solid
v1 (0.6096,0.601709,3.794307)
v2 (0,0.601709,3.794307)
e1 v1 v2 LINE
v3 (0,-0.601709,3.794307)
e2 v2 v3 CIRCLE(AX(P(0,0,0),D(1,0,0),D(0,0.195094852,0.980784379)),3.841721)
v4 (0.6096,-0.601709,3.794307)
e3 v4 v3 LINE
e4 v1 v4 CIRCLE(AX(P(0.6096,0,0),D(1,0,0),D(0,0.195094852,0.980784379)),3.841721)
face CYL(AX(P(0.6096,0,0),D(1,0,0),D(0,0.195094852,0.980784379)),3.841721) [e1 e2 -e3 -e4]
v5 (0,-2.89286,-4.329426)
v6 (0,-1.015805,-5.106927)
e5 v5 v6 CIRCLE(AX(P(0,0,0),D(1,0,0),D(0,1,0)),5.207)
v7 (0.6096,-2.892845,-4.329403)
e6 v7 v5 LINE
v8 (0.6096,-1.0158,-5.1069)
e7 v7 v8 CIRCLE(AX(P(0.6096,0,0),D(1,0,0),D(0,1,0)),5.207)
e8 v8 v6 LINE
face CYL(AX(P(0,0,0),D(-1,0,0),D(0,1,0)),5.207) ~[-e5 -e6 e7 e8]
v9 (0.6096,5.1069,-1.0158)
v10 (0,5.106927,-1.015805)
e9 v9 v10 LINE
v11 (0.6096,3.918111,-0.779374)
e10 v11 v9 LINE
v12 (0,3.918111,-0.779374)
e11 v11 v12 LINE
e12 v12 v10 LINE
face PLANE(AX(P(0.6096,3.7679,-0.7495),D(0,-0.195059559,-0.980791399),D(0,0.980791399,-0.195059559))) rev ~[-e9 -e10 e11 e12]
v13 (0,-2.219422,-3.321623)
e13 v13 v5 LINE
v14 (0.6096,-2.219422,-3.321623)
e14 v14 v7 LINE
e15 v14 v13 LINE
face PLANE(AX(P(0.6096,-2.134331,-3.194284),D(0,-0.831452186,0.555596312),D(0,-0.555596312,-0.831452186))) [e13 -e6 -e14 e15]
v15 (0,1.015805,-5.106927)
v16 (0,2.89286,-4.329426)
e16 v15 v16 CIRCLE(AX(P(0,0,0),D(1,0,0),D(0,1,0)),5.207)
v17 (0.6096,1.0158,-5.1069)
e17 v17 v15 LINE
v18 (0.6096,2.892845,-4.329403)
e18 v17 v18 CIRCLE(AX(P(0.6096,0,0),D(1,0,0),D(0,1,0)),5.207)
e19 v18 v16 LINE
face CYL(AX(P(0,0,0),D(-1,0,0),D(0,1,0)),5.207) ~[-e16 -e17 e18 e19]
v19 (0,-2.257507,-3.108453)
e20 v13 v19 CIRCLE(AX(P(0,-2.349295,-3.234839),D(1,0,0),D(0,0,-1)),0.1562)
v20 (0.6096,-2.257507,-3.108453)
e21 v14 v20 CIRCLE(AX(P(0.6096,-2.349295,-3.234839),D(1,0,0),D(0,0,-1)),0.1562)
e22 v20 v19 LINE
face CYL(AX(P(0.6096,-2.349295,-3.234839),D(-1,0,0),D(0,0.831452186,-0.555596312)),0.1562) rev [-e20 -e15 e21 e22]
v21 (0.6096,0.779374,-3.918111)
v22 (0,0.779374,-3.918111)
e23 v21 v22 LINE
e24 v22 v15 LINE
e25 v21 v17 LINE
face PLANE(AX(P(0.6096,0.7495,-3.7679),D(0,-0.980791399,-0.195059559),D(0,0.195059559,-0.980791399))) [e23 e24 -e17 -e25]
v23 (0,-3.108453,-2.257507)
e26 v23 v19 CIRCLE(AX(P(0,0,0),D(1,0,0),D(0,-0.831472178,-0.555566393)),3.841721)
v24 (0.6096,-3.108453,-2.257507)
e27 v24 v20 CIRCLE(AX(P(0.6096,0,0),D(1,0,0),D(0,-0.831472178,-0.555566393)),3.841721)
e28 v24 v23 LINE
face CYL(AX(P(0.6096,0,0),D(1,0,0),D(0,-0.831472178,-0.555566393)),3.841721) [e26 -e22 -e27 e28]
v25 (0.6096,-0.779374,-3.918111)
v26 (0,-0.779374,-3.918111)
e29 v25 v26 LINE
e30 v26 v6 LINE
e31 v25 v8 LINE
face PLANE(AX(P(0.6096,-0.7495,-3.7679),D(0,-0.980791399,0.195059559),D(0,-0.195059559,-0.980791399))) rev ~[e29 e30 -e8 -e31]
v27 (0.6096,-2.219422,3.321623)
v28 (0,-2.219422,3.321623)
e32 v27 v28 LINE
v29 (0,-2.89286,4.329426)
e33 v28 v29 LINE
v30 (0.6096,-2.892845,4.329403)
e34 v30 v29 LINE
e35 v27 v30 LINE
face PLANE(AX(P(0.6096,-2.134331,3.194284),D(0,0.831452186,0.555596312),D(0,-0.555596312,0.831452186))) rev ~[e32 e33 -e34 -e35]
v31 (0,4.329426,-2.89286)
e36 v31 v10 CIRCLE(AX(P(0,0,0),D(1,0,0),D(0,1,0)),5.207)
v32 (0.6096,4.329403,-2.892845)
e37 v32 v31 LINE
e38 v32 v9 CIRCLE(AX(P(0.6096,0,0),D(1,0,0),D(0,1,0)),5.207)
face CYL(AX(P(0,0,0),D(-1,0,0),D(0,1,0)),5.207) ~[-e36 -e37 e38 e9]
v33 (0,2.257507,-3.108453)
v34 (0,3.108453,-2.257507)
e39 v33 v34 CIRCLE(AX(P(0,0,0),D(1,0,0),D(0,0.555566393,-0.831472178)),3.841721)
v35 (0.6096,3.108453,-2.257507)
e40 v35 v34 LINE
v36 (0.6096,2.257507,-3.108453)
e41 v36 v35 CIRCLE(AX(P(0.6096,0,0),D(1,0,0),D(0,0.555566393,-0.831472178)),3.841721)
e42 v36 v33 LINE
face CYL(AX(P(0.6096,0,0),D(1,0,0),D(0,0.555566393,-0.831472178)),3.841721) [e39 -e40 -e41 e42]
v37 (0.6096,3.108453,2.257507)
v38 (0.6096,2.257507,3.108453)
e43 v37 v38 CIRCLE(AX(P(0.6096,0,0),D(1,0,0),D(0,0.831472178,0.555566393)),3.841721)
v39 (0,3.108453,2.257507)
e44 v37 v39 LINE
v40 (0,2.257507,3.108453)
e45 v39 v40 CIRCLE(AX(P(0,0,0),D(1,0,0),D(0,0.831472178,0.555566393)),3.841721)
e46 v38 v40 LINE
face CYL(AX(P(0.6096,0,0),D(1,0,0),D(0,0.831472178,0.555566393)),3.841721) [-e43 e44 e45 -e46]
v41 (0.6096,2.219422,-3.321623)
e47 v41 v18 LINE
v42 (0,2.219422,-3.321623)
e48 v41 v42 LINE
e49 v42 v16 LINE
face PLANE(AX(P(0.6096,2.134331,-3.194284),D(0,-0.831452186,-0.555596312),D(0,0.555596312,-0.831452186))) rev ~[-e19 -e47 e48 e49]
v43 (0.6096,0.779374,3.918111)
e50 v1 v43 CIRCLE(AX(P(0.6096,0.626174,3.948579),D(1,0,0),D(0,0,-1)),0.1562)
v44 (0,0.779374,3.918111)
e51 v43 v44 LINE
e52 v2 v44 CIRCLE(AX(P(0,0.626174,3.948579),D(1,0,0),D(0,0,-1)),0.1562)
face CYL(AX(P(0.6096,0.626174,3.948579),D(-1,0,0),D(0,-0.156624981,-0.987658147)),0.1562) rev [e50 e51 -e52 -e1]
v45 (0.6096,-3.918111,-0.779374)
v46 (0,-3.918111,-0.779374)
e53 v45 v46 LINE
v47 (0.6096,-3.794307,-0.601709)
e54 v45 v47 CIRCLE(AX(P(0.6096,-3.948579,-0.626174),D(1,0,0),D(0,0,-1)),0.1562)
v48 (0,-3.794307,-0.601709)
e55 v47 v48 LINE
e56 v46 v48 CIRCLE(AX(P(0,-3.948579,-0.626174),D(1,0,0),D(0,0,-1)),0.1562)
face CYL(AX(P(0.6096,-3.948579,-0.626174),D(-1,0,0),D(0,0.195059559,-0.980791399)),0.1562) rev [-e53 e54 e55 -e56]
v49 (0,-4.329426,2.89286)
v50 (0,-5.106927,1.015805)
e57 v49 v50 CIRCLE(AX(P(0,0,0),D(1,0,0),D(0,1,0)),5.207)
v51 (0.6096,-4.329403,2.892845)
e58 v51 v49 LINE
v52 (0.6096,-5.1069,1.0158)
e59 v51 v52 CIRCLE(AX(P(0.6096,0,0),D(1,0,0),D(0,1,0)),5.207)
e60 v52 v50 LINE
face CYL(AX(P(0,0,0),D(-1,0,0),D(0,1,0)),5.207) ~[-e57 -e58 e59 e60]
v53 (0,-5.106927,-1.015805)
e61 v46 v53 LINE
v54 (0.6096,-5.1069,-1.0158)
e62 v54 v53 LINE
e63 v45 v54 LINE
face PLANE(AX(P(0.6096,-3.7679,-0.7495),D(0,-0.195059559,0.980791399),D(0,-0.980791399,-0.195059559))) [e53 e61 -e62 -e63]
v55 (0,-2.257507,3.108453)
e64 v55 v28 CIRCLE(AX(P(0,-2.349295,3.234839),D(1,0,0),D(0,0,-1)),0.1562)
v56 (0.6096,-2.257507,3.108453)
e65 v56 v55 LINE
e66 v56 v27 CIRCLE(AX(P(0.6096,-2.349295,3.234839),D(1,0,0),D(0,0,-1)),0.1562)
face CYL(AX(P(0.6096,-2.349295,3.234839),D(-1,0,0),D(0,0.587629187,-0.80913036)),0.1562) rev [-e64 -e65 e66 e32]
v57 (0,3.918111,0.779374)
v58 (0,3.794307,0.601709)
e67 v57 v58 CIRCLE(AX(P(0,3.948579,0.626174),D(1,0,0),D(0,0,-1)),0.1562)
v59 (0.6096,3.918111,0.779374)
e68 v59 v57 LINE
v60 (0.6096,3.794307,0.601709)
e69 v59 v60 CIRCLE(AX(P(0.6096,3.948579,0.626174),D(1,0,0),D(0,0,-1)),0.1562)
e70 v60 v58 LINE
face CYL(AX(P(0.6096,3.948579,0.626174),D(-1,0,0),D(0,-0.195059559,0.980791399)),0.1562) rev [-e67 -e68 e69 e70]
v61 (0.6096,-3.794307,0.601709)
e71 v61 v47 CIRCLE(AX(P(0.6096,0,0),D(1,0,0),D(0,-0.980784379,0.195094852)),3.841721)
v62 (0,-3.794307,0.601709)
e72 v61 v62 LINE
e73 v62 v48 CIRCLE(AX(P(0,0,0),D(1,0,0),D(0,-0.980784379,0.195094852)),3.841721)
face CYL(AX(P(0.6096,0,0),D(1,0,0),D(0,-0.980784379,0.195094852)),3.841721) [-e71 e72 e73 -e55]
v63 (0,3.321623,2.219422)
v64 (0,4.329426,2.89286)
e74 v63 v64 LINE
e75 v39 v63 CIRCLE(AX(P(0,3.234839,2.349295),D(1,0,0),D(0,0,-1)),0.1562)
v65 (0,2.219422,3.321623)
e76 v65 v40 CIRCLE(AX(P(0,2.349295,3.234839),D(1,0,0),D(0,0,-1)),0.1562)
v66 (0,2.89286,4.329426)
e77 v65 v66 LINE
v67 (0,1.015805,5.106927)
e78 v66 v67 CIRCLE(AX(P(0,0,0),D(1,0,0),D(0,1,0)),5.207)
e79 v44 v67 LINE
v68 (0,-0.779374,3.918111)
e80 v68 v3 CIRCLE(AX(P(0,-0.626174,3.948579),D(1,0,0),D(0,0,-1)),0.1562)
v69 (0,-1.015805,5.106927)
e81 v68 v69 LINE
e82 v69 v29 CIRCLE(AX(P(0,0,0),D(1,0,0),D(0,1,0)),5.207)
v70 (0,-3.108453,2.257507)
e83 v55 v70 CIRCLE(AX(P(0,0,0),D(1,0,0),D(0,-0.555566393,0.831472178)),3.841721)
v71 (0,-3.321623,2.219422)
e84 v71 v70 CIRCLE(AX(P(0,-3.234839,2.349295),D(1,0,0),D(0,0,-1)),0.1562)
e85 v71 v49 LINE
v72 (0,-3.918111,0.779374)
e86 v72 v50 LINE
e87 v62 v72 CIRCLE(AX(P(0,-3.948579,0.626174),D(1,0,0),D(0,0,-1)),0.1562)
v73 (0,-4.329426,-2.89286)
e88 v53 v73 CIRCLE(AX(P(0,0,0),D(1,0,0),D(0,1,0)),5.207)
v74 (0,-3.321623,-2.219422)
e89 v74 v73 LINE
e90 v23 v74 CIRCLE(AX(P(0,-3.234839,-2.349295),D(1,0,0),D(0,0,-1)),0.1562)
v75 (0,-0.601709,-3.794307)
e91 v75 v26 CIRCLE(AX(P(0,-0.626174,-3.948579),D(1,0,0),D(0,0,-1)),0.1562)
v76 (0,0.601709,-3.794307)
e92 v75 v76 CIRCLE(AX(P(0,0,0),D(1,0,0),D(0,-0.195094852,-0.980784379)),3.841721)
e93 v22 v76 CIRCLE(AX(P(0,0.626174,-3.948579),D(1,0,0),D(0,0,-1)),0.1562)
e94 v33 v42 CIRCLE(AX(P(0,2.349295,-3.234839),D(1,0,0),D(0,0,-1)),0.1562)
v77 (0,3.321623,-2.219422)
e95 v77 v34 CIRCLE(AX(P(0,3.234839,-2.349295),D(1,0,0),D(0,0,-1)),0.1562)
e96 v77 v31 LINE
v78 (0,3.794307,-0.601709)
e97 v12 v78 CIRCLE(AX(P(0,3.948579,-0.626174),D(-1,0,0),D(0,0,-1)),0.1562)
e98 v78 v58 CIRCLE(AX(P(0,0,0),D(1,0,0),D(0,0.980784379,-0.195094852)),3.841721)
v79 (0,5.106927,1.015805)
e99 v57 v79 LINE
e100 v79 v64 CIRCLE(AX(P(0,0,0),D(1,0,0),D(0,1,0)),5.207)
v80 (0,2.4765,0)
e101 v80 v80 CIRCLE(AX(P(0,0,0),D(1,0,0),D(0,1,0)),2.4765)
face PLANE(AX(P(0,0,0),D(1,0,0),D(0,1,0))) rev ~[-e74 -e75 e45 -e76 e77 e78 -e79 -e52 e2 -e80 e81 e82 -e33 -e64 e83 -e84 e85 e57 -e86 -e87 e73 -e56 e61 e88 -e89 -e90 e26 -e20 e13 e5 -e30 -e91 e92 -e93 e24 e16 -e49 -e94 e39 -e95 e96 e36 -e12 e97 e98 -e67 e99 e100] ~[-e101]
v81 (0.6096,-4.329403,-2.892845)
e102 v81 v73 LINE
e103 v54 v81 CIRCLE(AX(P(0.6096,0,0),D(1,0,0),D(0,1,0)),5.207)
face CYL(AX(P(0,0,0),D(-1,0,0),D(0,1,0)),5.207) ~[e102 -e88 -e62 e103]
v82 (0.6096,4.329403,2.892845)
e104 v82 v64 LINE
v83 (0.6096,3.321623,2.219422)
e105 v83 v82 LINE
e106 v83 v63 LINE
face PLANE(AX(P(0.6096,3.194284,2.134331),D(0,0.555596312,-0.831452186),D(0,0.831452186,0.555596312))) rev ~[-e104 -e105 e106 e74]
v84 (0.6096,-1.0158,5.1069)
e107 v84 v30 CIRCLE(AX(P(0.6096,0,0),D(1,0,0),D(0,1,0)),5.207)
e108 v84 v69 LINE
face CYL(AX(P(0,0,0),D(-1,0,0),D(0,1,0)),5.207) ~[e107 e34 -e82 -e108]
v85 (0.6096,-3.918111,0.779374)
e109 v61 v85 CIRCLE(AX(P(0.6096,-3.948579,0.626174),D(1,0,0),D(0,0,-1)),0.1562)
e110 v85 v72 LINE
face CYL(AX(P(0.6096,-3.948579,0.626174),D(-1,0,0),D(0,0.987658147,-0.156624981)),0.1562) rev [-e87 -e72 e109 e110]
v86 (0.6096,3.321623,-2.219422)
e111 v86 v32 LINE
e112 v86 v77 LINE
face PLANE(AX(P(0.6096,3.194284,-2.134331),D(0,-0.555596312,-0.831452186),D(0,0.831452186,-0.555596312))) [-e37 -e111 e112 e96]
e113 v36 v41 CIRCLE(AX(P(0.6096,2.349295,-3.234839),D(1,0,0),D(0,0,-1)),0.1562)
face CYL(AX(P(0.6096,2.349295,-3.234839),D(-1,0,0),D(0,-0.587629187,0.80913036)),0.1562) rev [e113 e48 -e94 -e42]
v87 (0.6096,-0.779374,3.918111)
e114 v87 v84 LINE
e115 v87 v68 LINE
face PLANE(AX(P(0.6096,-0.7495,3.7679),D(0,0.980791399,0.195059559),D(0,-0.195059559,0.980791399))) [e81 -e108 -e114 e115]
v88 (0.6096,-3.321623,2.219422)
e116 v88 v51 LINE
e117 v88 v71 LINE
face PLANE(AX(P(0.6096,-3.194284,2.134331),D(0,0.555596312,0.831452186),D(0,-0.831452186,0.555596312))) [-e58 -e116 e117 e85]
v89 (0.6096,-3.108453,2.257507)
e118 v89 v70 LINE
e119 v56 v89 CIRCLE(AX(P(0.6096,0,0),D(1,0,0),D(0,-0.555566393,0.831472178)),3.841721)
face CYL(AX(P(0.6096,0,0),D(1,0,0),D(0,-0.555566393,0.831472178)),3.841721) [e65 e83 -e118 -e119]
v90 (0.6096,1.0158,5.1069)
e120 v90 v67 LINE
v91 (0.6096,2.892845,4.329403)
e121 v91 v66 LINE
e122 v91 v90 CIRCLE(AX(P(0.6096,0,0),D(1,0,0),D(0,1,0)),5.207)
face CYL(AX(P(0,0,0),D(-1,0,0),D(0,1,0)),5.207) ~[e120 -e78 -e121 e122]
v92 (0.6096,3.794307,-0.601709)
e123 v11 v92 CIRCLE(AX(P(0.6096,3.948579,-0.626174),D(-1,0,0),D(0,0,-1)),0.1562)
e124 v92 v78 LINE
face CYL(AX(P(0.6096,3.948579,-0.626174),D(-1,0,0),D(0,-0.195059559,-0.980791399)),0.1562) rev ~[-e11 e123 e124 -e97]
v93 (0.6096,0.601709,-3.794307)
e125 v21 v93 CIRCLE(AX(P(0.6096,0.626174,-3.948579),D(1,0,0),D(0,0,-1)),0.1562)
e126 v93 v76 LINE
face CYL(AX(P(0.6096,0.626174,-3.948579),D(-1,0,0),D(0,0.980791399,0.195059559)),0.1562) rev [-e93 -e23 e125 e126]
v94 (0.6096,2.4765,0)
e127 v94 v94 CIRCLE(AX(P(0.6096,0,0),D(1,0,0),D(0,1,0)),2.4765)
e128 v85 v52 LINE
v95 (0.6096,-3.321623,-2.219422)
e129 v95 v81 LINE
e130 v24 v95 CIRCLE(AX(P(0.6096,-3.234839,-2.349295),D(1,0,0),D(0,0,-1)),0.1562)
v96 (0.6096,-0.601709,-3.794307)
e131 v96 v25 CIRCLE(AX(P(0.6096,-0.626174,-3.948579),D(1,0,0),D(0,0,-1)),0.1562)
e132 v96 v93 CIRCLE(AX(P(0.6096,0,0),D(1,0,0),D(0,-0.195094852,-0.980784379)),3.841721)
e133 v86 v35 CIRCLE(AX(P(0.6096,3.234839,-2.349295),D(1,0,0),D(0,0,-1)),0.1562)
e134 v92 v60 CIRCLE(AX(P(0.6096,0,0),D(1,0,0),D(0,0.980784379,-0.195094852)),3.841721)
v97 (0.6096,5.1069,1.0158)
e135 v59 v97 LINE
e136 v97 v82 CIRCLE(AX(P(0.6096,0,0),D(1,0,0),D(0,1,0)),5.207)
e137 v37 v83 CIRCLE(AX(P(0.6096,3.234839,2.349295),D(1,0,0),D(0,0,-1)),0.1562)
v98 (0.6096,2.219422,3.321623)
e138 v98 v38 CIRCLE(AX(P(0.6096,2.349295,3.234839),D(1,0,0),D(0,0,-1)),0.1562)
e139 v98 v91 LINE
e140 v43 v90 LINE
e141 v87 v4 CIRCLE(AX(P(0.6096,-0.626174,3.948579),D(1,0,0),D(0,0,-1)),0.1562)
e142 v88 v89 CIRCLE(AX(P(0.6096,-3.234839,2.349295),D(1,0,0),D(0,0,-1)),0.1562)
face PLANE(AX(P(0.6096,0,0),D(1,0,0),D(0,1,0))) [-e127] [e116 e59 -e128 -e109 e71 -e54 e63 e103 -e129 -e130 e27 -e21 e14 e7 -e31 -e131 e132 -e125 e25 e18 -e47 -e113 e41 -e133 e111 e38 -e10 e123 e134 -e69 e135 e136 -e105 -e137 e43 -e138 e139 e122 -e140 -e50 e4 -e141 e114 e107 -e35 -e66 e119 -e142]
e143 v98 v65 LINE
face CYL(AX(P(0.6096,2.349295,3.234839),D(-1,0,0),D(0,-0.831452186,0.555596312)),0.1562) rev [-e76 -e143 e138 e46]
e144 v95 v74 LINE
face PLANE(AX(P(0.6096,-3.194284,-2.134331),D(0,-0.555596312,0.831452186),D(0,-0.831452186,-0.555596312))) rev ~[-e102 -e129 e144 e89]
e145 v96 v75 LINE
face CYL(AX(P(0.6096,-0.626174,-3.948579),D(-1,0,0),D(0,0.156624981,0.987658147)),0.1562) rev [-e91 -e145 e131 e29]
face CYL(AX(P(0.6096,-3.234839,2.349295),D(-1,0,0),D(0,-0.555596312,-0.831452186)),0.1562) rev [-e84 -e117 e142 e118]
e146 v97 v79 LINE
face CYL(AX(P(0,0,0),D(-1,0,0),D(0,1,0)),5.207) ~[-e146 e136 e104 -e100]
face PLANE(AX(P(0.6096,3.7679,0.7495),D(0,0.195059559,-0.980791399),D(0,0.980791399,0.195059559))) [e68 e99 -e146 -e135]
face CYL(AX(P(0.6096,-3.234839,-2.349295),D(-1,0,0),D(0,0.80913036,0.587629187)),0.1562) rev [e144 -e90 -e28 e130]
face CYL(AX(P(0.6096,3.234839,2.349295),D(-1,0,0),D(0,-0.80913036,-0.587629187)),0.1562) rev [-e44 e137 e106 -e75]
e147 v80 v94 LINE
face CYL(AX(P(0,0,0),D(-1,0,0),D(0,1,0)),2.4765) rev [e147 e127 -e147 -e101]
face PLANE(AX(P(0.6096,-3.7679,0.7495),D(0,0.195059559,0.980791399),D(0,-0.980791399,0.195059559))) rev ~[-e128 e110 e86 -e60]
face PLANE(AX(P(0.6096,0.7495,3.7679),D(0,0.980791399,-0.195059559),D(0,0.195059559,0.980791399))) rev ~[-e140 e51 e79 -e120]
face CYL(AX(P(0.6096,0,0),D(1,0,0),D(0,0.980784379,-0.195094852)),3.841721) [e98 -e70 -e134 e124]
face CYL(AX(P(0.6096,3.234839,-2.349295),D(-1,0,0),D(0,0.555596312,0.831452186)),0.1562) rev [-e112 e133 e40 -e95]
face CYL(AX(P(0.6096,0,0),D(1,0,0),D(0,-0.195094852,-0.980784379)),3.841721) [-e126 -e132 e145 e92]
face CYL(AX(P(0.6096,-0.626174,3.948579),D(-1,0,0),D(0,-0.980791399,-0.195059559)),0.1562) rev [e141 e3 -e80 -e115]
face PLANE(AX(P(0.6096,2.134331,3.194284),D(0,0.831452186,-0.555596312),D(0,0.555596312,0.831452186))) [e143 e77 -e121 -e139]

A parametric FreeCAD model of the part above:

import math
import FreeCAD as App
import Part
import Sketcher
Q = App.Units.Quantity


def edges_at(feature, points):
    """Names of the edges that pass closest to the given points."""
    edges = feature.Shape.Edges
    near = lambda p: min(range(len(edges)), key=lambda i: edges[i].distToShape(Part.Vertex(*p))[0])
    return sorted({f"Edge{near(p) + 1}" for p in points})

doc = App.newDocument("Part")
body = doc.addObject("PartDesign::Body", "Body")

# Sketch on YZ plane
sketch1 = body.newObject("Sketcher::SketchObject", "Sketch")
sketch1.AttachmentSupport = (doc.getObject("YZ_Plane"), [""])
sketch1.MapMode = "FlatFace"
sketch1.addGeometry([
    Part.Circle(App.Vector(0, 0, 0), App.Vector(0, 0, 1), 5.2),
    Part.Circle(App.Vector(0, 0, 0), App.Vector(0, 0, 1), 2.5),
], False)
sketch1.addConstraint([
    Sketcher.Constraint("Coincident", 0, 3, -1, 1),
    Sketcher.Constraint("Coincident", 1, 3, -1, 1),
    Sketcher.Constraint("Diameter", 0, Q("0.41 in")),
    Sketcher.Constraint("Diameter", 1, Q("0.195 in")),
])
pad1 = body.newObject("PartDesign::Pad", "Pad")
pad1.Profile = sketch1
pad1.Length = Q("0.024 in")

# Sketch on YZ plane
sketch2 = body.newObject("Sketcher::SketchObject", "Sketch001")
sketch2.AttachmentSupport = (doc.getObject("YZ_Plane"), [""])
sketch2.MapMode = "FlatFace"
sketch2.AttachmentOffset = App.Placement(App.Vector(0, 0, 0.024 * 25.4), App.Rotation())
sketch2.addGeometry([
    Part.LineSegment(App.Vector(3.8, -0.7, 0), App.Vector(5.1, -1, 0)),
    Part.ArcOfCircle(Part.Circle(App.Vector(0, 0, 0), App.Vector(0, 0, 1), 5.2), math.radians(-11), math.radians(11)),
    Part.LineSegment(App.Vector(5.1, 1, 0), App.Vector(3.8, 0.7, 0)),
    Part.ArcOfCircle(Part.Circle(App.Vector(0, 0, 0), App.Vector(0, 0, 1), 3.8), math.radians(-11), math.radians(11)),
], False)
sketch2.addConstraint([
    Sketcher.Constraint("Coincident", 0, 2, 1, 1),
    Sketcher.Constraint("Coincident", 1, 2, 2, 1),
    Sketcher.Constraint("Coincident", 2, 2, 3, 2),
    Sketcher.Constraint("Coincident", 3, 1, 0, 1),
    Sketcher.Constraint("Coincident", 1, 3, -1, 1),
    Sketcher.Constraint("Coincident", 3, 3, -1, 1),
    Sketcher.Constraint("Vertical", 0, 2, 1, 2),
    Sketcher.Constraint("Vertical", 2, 2, 3, 1),
    Sketcher.Constraint("Radius", 3, 3.8417),
    Sketcher.Constraint("Radius", 1, Q("0.205 in")),
    Sketcher.Constraint("DistanceY", 0, 2, -1, 1, Q("0.04 in")),
    Sketcher.Constraint("DistanceY", -1, 1, 2, 2, Q("0.0295 in")),
])
pocket1 = body.newObject("PartDesign::Pocket", "Pocket")
pocket1.Profile = sketch2
pocket1.Type = "ThroughAll"
doc.recompute()

fillet = body.newObject("PartDesign::Fillet", "Fillet")
fillet.Base = (pocket1, edges_at(pocket1, [(0.305, 3.768, 0.75), (0.305, 3.768, -0.75)]))
fillet.Radius = 0.1562
doc.recompute()

polarpattern = body.newObject("PartDesign::PolarPattern", "PolarPattern")
polarpattern.Originals = [pocket1, fillet]
polarpattern.Axis = (doc.getObject("X_Axis"), [""])
polarpattern.Angle = 360
polarpattern.Occurrences = 8
body.Tip = polarpattern

doc.recompute()
